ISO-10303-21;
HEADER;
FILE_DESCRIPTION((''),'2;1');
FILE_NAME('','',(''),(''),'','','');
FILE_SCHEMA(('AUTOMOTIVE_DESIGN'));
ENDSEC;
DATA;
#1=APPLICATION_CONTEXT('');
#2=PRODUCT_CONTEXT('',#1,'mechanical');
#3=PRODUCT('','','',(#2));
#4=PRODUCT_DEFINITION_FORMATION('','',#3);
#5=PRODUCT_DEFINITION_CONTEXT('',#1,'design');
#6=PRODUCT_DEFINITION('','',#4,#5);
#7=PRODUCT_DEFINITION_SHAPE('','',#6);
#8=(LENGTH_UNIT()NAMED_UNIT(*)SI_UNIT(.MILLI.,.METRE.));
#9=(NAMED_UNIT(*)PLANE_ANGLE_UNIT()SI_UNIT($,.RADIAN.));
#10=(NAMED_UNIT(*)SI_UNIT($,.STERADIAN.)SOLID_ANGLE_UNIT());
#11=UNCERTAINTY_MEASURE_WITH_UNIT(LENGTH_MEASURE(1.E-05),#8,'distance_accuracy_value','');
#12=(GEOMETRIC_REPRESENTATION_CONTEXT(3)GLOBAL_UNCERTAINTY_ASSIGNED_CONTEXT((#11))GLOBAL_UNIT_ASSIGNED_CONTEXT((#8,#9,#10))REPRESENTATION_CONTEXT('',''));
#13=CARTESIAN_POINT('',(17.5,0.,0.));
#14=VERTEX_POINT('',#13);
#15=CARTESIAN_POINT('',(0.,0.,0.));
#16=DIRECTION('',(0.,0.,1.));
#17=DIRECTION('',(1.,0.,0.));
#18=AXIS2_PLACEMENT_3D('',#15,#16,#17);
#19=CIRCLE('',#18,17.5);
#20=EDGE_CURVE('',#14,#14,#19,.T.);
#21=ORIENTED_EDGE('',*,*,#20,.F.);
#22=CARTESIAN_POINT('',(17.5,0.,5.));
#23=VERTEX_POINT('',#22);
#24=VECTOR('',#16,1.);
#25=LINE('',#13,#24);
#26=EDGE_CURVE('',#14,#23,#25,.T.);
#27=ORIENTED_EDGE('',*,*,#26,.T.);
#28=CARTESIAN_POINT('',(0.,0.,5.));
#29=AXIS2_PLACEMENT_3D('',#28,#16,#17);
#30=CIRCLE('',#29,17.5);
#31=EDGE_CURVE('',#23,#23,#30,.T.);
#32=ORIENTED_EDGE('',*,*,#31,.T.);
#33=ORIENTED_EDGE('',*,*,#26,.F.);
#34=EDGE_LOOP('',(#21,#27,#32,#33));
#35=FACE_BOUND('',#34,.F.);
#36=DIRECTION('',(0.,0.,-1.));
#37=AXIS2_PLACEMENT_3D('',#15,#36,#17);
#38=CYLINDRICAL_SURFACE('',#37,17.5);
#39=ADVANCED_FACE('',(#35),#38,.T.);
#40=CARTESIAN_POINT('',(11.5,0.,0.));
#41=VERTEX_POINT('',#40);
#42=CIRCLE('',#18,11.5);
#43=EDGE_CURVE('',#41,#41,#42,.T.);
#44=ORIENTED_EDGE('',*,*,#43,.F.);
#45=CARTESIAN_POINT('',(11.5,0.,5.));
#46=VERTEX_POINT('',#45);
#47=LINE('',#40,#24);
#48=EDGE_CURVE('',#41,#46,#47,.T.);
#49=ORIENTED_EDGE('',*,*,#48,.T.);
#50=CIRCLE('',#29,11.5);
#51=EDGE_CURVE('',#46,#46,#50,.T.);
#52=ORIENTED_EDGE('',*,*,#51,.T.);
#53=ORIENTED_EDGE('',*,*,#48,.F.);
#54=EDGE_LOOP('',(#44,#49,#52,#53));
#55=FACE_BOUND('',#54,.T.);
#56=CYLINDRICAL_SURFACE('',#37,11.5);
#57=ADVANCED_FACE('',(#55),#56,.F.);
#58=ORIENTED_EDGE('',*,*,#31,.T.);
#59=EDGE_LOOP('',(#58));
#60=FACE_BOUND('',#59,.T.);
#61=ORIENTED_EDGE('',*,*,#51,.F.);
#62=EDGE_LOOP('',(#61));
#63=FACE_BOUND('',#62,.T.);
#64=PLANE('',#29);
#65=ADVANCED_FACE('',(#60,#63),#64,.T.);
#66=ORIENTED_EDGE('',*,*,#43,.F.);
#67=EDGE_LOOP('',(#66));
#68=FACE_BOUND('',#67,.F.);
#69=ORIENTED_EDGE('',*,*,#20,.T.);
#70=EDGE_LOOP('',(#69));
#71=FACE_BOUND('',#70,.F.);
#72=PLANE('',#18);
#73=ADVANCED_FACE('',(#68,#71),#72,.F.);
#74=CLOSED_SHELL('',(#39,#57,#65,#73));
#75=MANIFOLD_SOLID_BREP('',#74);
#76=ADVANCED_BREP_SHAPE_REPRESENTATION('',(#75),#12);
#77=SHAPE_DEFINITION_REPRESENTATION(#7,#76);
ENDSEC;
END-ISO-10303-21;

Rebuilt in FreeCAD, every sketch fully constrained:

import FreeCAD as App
import Part
import Sketcher
Q = App.Units.Quantity

doc = App.newDocument("Part")
body = doc.addObject("PartDesign::Body", "Body")

sketch1 = body.newObject("Sketcher::SketchObject", "Sketch")
sketch1.AttachmentSupport = (doc.getObject("XY_Plane"), [""])
sketch1.MapMode = "FlatFace"
sketch1.addGeometry(Part.Circle(App.Vector(0, 0, 0), App.Vector(0, 0, 1), 11.5), False)
sketch1.addConstraint([
    Sketcher.Constraint("Coincident", 0, 3, -1, 1),
    Sketcher.Constraint("Diameter", 0, Q("23 mm")),
])
pad1 = body.newObject("PartDesign::Pad", "Pad")
pad1.Profile = sketch1
pad1.Length = 5
body2 = doc.addObject("PartDesign::Body", "Body001")

sketch2 = body2.newObject("Sketcher::SketchObject", "Sketch001")
sketch2.AttachmentSupport = (doc.getObject("XY_Plane001"), [""])
sketch2.MapMode = "FlatFace"
sketch2.addGeometry(Part.Circle(App.Vector(0, 0, 0), App.Vector(0, 0, 1), 17.5), False)
sketch2.addConstraint([
    Sketcher.Constraint("Coincident", 0, 3, -1, 1),
    Sketcher.Constraint("Diameter", 0, Q("35 mm")),
])
pad2 = body2.newObject("PartDesign::Pad", "Pad001")
pad2.Profile = sketch2
pad2.Length = 5
doc.recompute()

boolean = body2.newObject("PartDesign::Boolean", "Boolean")
boolean.Type = "Cut"
boolean.addObjects([body])

doc.recompute()
